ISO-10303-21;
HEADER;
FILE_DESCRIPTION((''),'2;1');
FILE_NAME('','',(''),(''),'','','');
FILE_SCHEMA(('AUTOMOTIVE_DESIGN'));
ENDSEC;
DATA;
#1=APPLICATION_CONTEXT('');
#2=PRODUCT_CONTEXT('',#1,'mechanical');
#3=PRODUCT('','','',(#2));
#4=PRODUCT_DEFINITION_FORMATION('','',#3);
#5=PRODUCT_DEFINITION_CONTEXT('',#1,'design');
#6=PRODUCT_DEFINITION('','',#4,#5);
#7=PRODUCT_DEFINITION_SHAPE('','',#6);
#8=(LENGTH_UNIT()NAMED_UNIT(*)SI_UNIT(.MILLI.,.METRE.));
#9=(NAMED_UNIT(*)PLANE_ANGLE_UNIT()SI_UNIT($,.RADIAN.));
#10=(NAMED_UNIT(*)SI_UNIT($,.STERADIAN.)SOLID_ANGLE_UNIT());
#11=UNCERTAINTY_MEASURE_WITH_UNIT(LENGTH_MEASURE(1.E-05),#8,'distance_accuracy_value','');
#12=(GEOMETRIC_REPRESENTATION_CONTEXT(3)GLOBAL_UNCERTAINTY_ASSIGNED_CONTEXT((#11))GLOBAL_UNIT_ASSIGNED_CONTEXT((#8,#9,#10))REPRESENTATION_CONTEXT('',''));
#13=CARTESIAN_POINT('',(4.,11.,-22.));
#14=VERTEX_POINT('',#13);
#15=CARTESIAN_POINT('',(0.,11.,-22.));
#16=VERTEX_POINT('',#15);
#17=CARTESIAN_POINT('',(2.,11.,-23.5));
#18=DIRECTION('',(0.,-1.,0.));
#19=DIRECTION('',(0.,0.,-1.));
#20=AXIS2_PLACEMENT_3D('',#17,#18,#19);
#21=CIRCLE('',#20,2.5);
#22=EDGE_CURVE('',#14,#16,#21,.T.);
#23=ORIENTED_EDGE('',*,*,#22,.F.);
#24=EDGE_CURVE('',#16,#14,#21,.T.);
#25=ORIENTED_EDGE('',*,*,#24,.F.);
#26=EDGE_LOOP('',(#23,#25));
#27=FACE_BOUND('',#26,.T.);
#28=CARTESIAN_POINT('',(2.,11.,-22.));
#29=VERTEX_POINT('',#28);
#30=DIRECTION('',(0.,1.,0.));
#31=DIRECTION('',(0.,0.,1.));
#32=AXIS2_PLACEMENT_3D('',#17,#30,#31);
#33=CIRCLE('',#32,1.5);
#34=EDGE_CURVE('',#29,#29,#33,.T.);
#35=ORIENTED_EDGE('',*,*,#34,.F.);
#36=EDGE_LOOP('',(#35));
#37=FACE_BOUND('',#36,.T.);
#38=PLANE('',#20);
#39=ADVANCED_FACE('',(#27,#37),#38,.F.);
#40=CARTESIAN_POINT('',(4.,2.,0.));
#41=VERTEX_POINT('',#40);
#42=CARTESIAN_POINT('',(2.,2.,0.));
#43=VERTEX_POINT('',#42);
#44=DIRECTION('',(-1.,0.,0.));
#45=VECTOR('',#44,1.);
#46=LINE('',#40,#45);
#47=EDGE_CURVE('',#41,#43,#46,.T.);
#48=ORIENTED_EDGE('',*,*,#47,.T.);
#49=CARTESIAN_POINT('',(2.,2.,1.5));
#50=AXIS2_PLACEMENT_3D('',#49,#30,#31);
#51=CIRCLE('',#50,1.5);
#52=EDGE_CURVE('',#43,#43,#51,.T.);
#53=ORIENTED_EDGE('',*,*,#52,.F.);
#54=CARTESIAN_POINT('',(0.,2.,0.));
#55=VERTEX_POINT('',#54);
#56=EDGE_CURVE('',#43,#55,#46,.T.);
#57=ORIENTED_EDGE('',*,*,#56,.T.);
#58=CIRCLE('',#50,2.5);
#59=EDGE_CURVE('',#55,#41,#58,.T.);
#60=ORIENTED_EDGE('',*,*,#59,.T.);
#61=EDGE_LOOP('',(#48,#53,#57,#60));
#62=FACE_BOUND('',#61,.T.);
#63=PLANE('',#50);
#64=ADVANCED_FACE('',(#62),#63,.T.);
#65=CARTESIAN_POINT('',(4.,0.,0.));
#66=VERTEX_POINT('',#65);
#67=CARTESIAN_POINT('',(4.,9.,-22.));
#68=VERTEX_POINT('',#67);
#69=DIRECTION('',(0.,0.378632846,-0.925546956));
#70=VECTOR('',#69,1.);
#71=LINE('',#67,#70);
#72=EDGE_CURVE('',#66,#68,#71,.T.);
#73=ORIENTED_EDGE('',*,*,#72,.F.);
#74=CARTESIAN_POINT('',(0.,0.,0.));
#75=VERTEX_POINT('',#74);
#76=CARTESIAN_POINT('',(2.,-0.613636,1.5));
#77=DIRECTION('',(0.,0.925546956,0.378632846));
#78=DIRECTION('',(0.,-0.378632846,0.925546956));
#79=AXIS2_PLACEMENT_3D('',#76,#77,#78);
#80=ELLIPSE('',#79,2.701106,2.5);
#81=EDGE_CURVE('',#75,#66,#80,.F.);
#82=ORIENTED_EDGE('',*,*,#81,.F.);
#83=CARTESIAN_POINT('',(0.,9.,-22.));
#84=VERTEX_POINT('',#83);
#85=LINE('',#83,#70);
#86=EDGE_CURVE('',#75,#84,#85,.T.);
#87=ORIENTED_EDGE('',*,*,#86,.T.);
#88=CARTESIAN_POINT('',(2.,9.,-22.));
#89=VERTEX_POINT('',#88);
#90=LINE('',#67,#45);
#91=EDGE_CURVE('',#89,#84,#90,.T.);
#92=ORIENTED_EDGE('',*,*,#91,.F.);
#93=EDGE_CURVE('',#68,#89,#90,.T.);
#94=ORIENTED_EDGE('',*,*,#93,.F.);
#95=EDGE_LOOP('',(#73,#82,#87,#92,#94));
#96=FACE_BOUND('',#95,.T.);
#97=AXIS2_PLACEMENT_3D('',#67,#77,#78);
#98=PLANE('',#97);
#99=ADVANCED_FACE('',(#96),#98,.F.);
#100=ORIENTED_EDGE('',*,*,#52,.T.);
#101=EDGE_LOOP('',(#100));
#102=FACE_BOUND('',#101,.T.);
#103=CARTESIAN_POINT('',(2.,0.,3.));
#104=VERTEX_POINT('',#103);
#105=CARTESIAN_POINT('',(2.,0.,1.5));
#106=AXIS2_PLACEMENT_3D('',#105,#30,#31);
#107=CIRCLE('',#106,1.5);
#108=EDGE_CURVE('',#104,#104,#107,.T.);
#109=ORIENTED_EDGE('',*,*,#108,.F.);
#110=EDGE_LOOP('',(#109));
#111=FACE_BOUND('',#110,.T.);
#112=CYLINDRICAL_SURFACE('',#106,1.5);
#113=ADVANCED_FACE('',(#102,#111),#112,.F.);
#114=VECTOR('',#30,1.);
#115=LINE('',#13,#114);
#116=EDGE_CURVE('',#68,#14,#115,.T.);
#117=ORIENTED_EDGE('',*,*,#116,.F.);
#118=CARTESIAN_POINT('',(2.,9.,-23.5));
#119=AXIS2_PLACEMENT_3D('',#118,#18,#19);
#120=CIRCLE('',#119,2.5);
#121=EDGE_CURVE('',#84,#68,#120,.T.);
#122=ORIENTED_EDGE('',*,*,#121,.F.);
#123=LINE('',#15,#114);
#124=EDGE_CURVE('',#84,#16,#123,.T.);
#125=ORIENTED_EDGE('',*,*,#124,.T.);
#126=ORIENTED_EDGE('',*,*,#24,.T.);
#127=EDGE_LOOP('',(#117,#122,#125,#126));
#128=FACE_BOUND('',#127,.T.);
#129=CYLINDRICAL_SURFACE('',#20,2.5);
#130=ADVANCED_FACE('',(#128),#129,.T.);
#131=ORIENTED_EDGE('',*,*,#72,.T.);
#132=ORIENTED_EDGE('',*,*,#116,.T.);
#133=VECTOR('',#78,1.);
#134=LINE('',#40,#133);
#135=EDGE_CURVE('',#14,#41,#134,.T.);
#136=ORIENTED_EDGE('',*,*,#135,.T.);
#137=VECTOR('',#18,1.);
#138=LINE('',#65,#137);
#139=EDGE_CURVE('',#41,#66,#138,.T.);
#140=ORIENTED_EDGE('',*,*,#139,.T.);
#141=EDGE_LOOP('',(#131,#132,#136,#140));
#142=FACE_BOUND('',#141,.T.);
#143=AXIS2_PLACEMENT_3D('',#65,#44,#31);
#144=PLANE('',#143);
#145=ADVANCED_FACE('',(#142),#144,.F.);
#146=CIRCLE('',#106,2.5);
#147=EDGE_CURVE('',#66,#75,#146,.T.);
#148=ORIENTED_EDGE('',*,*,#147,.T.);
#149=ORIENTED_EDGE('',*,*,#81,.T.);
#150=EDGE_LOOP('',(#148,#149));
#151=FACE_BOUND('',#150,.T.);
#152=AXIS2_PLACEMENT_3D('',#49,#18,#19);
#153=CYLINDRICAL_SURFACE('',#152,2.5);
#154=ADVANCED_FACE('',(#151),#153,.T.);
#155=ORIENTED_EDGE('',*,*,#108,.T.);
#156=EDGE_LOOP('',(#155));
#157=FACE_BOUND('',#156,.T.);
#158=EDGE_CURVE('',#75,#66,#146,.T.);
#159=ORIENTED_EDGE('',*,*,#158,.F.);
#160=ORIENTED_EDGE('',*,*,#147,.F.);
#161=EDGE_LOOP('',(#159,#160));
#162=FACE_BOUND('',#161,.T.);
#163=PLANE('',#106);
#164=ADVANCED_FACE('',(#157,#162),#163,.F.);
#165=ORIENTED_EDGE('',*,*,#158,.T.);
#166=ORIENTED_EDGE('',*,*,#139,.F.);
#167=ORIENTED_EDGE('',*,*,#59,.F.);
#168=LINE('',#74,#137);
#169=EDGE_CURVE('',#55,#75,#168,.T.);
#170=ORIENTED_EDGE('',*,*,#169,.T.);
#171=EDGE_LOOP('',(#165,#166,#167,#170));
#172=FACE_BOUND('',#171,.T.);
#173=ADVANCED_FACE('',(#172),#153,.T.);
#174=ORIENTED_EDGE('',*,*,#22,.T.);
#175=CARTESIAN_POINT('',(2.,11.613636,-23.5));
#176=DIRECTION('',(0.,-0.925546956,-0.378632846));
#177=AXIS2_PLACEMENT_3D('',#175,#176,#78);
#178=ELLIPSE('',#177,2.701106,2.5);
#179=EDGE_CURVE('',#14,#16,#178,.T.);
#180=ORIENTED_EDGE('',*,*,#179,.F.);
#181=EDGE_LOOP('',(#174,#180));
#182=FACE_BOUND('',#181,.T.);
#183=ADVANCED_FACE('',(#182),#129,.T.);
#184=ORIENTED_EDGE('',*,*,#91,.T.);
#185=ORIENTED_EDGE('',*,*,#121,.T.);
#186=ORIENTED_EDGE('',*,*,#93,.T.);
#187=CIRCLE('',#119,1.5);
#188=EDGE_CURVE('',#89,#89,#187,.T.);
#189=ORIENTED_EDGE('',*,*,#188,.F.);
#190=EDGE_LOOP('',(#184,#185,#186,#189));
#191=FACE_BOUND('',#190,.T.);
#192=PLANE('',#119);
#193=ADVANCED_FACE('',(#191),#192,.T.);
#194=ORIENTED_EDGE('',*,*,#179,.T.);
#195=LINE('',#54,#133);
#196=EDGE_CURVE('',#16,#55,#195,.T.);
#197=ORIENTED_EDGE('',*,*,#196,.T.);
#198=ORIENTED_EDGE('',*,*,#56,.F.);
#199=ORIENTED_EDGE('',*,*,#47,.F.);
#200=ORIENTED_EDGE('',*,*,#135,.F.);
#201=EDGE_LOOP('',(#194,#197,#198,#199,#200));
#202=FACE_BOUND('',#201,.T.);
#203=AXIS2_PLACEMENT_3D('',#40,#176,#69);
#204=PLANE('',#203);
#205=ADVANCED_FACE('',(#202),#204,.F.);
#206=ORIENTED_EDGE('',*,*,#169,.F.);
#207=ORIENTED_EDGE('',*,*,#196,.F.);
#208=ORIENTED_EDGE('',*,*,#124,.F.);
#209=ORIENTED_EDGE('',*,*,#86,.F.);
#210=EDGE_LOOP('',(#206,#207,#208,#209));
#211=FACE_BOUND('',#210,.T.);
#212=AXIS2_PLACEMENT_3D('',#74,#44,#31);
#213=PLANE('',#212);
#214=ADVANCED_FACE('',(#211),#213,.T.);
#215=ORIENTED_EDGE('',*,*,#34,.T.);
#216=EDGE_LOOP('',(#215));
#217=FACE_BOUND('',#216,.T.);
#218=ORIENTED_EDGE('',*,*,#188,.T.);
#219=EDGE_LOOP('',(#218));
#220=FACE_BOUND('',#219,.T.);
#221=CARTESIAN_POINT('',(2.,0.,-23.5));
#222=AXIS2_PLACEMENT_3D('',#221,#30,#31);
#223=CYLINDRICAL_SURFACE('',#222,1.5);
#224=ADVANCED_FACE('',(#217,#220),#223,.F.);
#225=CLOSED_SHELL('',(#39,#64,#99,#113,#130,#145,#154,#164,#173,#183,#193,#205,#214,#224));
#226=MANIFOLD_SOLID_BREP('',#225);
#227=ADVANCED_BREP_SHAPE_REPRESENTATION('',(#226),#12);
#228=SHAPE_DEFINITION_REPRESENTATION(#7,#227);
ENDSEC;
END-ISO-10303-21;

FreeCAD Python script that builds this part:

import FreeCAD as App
import Part
import Sketcher


def add_polygon(sketch, points):
    """Adds a closed chain of lines whose ends are joined by coincident constraints."""
    first, n = sketch.GeometryCount, len(points)
    for a, b in zip(points, points[1:] + points[:1]):
        sketch.addGeometry(Part.LineSegment(App.Vector(*a, 0), App.Vector(*b, 0)), False)
    for i in range(n):
        sketch.addConstraint(Sketcher.Constraint("Coincident", first + i, 2, first + (i + 1) % n, 1))

doc = App.newDocument("Part")
body = doc.addObject("PartDesign::Body", "Body")

# Sketch on YZ plane
sketch1 = body.newObject("Sketcher::SketchObject", "Sketch")
sketch1.AttachmentSupport = (doc.getObject("YZ_Plane"), [""])
sketch1.MapMode = "FlatFace"
add_polygon(sketch1, [(2, 0), (0, 0), (9, -22), (11, -22)])  # lines 0-3
sketch1.addConstraint([
    Sketcher.Constraint("Horizontal", 0),
    Sketcher.Constraint("Horizontal", 2),
    Sketcher.Constraint("Coincident", 0, 2, -1, 1),
    Sketcher.Constraint("Parallel", 1, 3),
    Sketcher.Constraint("DistanceX", 0, 2, 0, 1, 2.0),
    Sketcher.Constraint("DistanceX", -1, 1, 1, 2, 9.0),
    Sketcher.Constraint("DistanceY", 1, 2, -1, 1, 22.0),
])
pad1 = body.newObject("PartDesign::Pad", "Pad")
pad1.Profile = sketch1
pad1.Length = 4

# Sketch on XZ plane
sketch2 = body.newObject("Sketcher::SketchObject", "Sketch001")
sketch2.AttachmentSupport = (doc.getObject("XZ_Plane"), [""])
sketch2.MapMode = "FlatFace"
sketch2.addGeometry(Part.Circle(App.Vector(2, 1.5, 0), App.Vector(0, 0, 1), 2.5), False)
sketch2.addConstraint([
    Sketcher.Constraint("Diameter", 0, 5.0),
    Sketcher.Constraint("DistanceX", -1, 1, 0, 3, 2.0),
    Sketcher.Constraint("DistanceY", -1, 1, 0, 3, 1.5),
])
pad2 = body.newObject("PartDesign::Pad", "Pad001")
pad2.Profile = sketch2
pad2.Length = 2
pad2.Reversed = True

# Sketch on XZ plane
sketch3 = body.newObject("Sketcher::SketchObject", "Sketch002")
sketch3.AttachmentSupport = (doc.getObject("XZ_Plane"), [""])
sketch3.MapMode = "FlatFace"
sketch3.AttachmentOffset = App.Placement(App.Vector(0, 0, -9), App.Rotation())
sketch3.addGeometry(Part.Circle(App.Vector(2, -23.5, 0), App.Vector(0, 0, 1), 2.5), False)
sketch3.addConstraint([
    Sketcher.Constraint("Diameter", 0, 5.0),
    Sketcher.Constraint("DistanceX", -1, 1, 0, 3, 2.0),
    Sketcher.Constraint("DistanceY", 0, 3, -1, 1, 23.5),
])
pad3 = body.newObject("PartDesign::Pad", "Pad002")
pad3.Profile = sketch3
pad3.Length = 2
pad3.Reversed = True

# Sketch on XZ plane
sketch4 = body.newObject("Sketcher::SketchObject", "Sketch003")
sketch4.AttachmentSupport = (doc.getObject("XZ_Plane"), [""])
sketch4.MapMode = "FlatFace"
sketch4.AttachmentOffset = App.Placement(App.Vector(0, 0, -2), App.Rotation())
sketch4.addGeometry(Part.Circle(App.Vector(2, 1.5, 0), App.Vector(0, 0, 1), 1.5), False)
sketch4.addConstraint([
    Sketcher.Constraint("Diameter", 0, 3.0),
    Sketcher.Constraint("DistanceX", -1, 1, 0, 3, 2.0),
    Sketcher.Constraint("DistanceY", -1, 1, 0, 3, 1.5),
])
pocket1 = body.newObject("PartDesign::Pocket", "Pocket")
pocket1.Profile = sketch4
pocket1.Type = "ThroughAll"
pocket1.Reversed = True

# Sketch on XZ plane
sketch5 = body.newObject("Sketcher::SketchObject", "Sketch004")
sketch5.AttachmentSupport = (doc.getObject("XZ_Plane"), [""])
sketch5.MapMode = "FlatFace"
sketch5.AttachmentOffset = App.Placement(App.Vector(0, 0, -11), App.Rotation())
sketch5.addGeometry(Part.Circle(App.Vector(2, -23.5, 0), App.Vector(0, 0, 1), 1.5), False)
sketch5.addConstraint([
    Sketcher.Constraint("Diameter", 0, 3.0),
    Sketcher.Constraint("DistanceX", -1, 1, 0, 3, 2.0),
    Sketcher.Constraint("DistanceY", 0, 3, -1, 1, 23.5),
])
pocket2 = body.newObject("PartDesign::Pocket", "Pocket001")
pocket2.Profile = sketch5
pocket2.Type = "ThroughAll"
pocket2.Reversed = True

doc.recompute()
